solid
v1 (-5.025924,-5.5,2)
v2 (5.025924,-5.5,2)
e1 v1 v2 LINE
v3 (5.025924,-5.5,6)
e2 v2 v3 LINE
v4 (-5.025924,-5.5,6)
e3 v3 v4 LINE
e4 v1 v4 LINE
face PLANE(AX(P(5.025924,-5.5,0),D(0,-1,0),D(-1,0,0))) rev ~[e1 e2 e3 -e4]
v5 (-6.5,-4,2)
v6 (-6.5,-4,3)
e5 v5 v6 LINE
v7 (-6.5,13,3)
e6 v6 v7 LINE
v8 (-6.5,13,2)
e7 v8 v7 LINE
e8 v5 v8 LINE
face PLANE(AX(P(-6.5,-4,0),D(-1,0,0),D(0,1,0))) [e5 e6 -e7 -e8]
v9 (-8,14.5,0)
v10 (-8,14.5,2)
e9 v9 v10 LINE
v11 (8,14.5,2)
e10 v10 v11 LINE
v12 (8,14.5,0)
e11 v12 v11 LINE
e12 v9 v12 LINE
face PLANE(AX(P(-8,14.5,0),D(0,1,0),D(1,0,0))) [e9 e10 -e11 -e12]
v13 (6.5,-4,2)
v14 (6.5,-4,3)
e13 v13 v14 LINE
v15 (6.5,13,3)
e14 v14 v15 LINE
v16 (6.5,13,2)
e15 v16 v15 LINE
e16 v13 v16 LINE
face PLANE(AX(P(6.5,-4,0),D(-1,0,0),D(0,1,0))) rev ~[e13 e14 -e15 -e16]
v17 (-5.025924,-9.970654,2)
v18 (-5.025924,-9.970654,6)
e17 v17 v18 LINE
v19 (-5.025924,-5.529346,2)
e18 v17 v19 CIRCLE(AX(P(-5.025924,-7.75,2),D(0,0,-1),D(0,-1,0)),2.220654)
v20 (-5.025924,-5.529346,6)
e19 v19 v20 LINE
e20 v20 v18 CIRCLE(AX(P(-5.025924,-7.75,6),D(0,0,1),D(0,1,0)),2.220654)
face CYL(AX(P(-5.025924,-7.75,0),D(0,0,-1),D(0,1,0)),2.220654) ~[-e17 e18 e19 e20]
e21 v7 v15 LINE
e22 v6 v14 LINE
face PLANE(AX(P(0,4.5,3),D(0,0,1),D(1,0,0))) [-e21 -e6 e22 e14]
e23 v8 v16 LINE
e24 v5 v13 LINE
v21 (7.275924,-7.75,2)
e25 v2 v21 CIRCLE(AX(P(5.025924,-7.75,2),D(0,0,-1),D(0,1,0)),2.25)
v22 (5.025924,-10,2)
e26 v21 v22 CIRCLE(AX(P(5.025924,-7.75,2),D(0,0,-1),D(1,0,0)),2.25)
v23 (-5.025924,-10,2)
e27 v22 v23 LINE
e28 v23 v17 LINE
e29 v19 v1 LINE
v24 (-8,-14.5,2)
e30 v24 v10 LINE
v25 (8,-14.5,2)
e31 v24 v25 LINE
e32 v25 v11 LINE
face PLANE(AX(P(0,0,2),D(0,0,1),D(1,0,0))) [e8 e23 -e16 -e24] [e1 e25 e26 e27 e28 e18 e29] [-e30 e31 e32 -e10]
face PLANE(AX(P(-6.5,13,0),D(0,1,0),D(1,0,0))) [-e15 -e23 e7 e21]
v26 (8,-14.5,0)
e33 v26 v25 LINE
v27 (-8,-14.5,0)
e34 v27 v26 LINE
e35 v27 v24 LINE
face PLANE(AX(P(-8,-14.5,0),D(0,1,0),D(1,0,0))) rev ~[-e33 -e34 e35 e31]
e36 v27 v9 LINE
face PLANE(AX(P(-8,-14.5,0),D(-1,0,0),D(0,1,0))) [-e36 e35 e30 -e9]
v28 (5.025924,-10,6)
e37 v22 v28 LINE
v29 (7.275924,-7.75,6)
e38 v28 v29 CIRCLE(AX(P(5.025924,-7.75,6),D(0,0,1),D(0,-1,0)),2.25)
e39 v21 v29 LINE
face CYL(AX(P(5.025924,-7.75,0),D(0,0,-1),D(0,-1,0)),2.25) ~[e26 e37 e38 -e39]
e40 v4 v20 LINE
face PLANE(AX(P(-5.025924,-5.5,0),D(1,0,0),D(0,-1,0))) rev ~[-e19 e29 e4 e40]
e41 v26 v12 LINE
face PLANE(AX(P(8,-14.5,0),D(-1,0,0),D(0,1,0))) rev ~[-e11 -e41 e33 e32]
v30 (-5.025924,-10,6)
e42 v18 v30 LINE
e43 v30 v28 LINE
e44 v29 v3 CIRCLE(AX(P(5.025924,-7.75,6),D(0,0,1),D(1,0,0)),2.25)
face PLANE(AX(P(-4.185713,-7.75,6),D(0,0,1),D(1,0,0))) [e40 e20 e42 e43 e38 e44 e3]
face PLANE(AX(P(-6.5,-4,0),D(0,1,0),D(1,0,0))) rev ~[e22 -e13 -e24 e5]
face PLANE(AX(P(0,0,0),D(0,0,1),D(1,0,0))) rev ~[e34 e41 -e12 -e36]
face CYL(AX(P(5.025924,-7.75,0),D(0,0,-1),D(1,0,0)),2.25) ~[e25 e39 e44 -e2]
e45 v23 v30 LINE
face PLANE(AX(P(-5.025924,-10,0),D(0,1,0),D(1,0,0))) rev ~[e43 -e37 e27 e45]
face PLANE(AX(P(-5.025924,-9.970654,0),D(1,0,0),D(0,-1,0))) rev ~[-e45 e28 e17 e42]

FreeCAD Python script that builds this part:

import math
import FreeCAD as App
import Part
import Sketcher
Q = App.Units.Quantity

doc = App.newDocument("Part")
params = doc.addObject("Spreadsheet::Sheet", "Params")
for row, (alias, value) in enumerate([
    ("sketch1_width", "16 mm"),
    ("sketch1_width2", "13 mm"),
    ("sketch1_height", "29 mm"),
    ("sketch1_height2", "17 mm"),
    ("sketch1_radius", "2.25 mm"),
    ("pad1_length", "2 mm"),
    ("sketch2_radius", "2.25 mm"),
    ("pad2_length", "6 mm"),
    ("sketch3_width", "13 mm"),
    ("sketch3_height", "17 mm"),
    ("pad3_length", "3 mm"),
], start=1):
    params.set(f"A{row}", alias)
    params.set(f"B{row}", "=" + value)
    params.setAlias(f"B{row}", alias)

body = doc.addObject("PartDesign::Body", "Body")

# Sketch on XY plane
sketch1 = body.newObject("Sketcher::SketchObject", "Sketch")
sketch1.AttachmentSupport = (doc.getObject("XY_Plane"), [""])
sketch1.MapMode = "FlatFace"
sketch1.addGeometry(Part.LineSegment(App.Vector(-8, 14.5, 0), App.Vector(-8, -14.5, 0)), False)
sketch1.addGeometry(Part.LineSegment(App.Vector(-8, -14.5, 0), App.Vector(8, -14.5, 0)), False)
sketch1.addGeometry(Part.LineSegment(App.Vector(8, -14.5, 0), App.Vector(8, 14.5, 0)), False)
sketch1.addGeometry(Part.LineSegment(App.Vector(8, 14.5, 0), App.Vector(-8, 14.5, 0)), False)
sketch1.addGeometry(Part.ArcOfCircle(Part.Circle(App.Vector(5.026, -7.75, 0), App.Vector(0, 0, 1), 2.25), math.radians(0), math.radians(90)), False)
sketch1.addGeometry(Part.ArcOfCircle(Part.Circle(App.Vector(5.026, -7.75, 0), App.Vector(0, 0, 1), 2.25), math.radians(-90), math.radians(0)), False)
sketch1.addGeometry(Part.LineSegment(App.Vector(5.026, -10, 0), App.Vector(-5.026, -10, 0)), False)
sketch1.addGeometry(Part.LineSegment(App.Vector(-5.026, -10, 0), App.Vector(-5.026, -9.971, 0)), False)
sketch1.addGeometry(Part.ArcOfCircle(Part.Circle(App.Vector(-5.026, -7.75, 0), App.Vector(0, 0, 1), 2.221), math.radians(90), math.radians(270)), False)
sketch1.addGeometry(Part.LineSegment(App.Vector(-5.026, -5.529, 0), App.Vector(-5.026, -5.5, 0)), False)
sketch1.addGeometry(Part.LineSegment(App.Vector(-5.026, -5.5, 0), App.Vector(5.026, -5.5, 0)), False)
sketch1.addGeometry(Part.LineSegment(App.Vector(6.5, -4, 0), App.Vector(-6.5, -4, 0)), False)
sketch1.addGeometry(Part.LineSegment(App.Vector(-6.5, -4, 0), App.Vector(-6.5, 13, 0)), False)
sketch1.addGeometry(Part.LineSegment(App.Vector(-6.5, 13, 0), App.Vector(6.5, 13, 0)), False)
sketch1.addGeometry(Part.LineSegment(App.Vector(6.5, 13, 0), App.Vector(6.5, -4, 0)), False)
sketch1.addConstraint(Sketcher.Constraint("Coincident", 0, 2, 1, 1))
sketch1.addConstraint(Sketcher.Constraint("Coincident", 1, 2, 2, 1))
sketch1.addConstraint(Sketcher.Constraint("Coincident", 2, 2, 3, 1))
sketch1.addConstraint(Sketcher.Constraint("Coincident", 3, 2, 0, 1))
sketch1.addConstraint(Sketcher.Constraint("Tangent", 4, 1, 5, 2))
sketch1.addConstraint(Sketcher.Constraint("Tangent", 5, 1, 6, 1))
sketch1.addConstraint(Sketcher.Constraint("Coincident", 6, 2, 7, 1))
sketch1.addConstraint(Sketcher.Constraint("Coincident", 7, 2, 8, 2))
sketch1.addConstraint(Sketcher.Constraint("Coincident", 8, 1, 9, 1))
sketch1.addConstraint(Sketcher.Constraint("Coincident", 9, 2, 10, 1))
sketch1.addConstraint(Sketcher.Constraint("Tangent", 10, 2, 4, 2))
sketch1.addConstraint(Sketcher.Constraint("Coincident", 11, 2, 12, 1))
sketch1.addConstraint(Sketcher.Constraint("Coincident", 12, 2, 13, 1))
sketch1.addConstraint(Sketcher.Constraint("Coincident", 13, 2, 14, 1))
sketch1.addConstraint(Sketcher.Constraint("Coincident", 14, 2, 11, 1))
sketch1.addConstraint(Sketcher.Constraint("Vertical", 0))
sketch1.addConstraint(Sketcher.Constraint("Horizontal", 1))
sketch1.addConstraint(Sketcher.Constraint("Vertical", 2))
sketch1.addConstraint(Sketcher.Constraint("Horizontal", 3))
sketch1.addConstraint(Sketcher.Constraint("Horizontal", 6))
sketch1.addConstraint(Sketcher.Constraint("Vertical", 7))
sketch1.addConstraint(Sketcher.Constraint("Vertical", 9))
sketch1.addConstraint(Sketcher.Constraint("Horizontal", 10))
sketch1.addConstraint(Sketcher.Constraint("Horizontal", 11))
sketch1.addConstraint(Sketcher.Constraint("Vertical", 12))
sketch1.addConstraint(Sketcher.Constraint("Horizontal", 13))
sketch1.addConstraint(Sketcher.Constraint("Vertical", 14))
sketch1.addConstraint(Sketcher.Constraint("Equal", 4, 5))
sketch1.addConstraint(Sketcher.Constraint("Symmetric", 0, 2, 2, 2, -1, 1))
sketch1.addConstraint(Sketcher.Constraint("Symmetric", 4, 3, 8, 3, -2))
sketch1.addConstraint(Sketcher.Constraint("Horizontal", 8, 3, 4, 1))
sketch1.addConstraint(Sketcher.Constraint("Vertical", 8, 3, 6, 2))
sketch1.addConstraint(Sketcher.Constraint("Vertical", 7, 2, 8, 1))
sketch1.addConstraint(Sketcher.Constraint("DistanceX", 1, 1, 1, 2, Q("16 mm")))
sketch1.addConstraint(Sketcher.Constraint("DistanceX", 11, 2, 11, 1, Q("13 mm")))
sketch1.addConstraint(Sketcher.Constraint("DistanceY", 0, 2, 0, 1, Q("29 mm")))
sketch1.addConstraint(Sketcher.Constraint("DistanceY", 12, 1, 12, 2, Q("17 mm")))
sketch1.addConstraint(Sketcher.Constraint("Radius", 4, Q("2.25 mm")))
sketch1.addConstraint(Sketcher.Constraint("DistanceY", 5, 1, -1, 1, Q("10 mm")))
sketch1.addConstraint(Sketcher.Constraint("DistanceY", 11, 2, -1, 1, Q("4 mm")))
sketch1.addConstraint(Sketcher.Constraint("DistanceX", 11, 2, -1, 1, Q("6.5 mm")))
sketch1.addConstraint(Sketcher.Constraint("Radius", 8, Q("2.220654 mm")))
sketch1.addConstraint(Sketcher.Constraint("DistanceX", 6, 2, 6, 1, Q("10.051848 mm")))
sketch1.setExpression("Constraints[33]", "Params.sketch1_width")
sketch1.setExpression("Constraints[34]", "Params.sketch1_width2")
sketch1.setExpression("Constraints[35]", "Params.sketch1_height")
sketch1.setExpression("Constraints[36]", "Params.sketch1_height2")
sketch1.setExpression("Constraints[37]", "Params.sketch1_radius")
pad1 = body.newObject("PartDesign::Pad", "Pad")
pad1.Profile = sketch1
pad1.setExpression("Length", "Params.pad1_length")

# Sketch on XY plane
sketch2 = body.newObject("Sketcher::SketchObject", "Sketch001")
sketch2.AttachmentSupport = (doc.getObject("XY_Plane"), [""])
sketch2.MapMode = "FlatFace"
sketch2.addGeometry(Part.ArcOfCircle(Part.Circle(App.Vector(-5.026, -7.75, 0), App.Vector(0, 0, 1), 2.221), math.radians(90), math.radians(270)), False)
sketch2.addGeometry(Part.LineSegment(App.Vector(-5.026, -9.971, 0), App.Vector(-5.026, -10, 0)), False)
sketch2.addGeometry(Part.LineSegment(App.Vector(-5.026, -10, 0), App.Vector(5.026, -10, 0)), False)
sketch2.addGeometry(Part.ArcOfCircle(Part.Circle(App.Vector(5.026, -7.75, 0), App.Vector(0, 0, 1), 2.25), math.radians(-90), math.radians(0)), False)
sketch2.addGeometry(Part.ArcOfCircle(Part.Circle(App.Vector(5.026, -7.75, 0), App.Vector(0, 0, 1), 2.25), math.radians(0), math.radians(90)), False)
sketch2.addGeometry(Part.LineSegment(App.Vector(5.026, -5.5, 0), App.Vector(-5.026, -5.5, 0)), False)
sketch2.addGeometry(Part.LineSegment(App.Vector(-5.026, -5.5, 0), App.Vector(-5.026, -5.529, 0)), False)
sketch2.addConstraint(Sketcher.Constraint("Coincident", 0, 2, 1, 1))
sketch2.addConstraint(Sketcher.Constraint("Coincident", 1, 2, 2, 1))
sketch2.addConstraint(Sketcher.Constraint("Tangent", 2, 2, 3, 1))
sketch2.addConstraint(Sketcher.Constraint("Tangent", 3, 2, 4, 1))
sketch2.addConstraint(Sketcher.Constraint("Tangent", 4, 2, 5, 1))
sketch2.addConstraint(Sketcher.Constraint("Coincident", 5, 2, 6, 1))
sketch2.addConstraint(Sketcher.Constraint("Coincident", 6, 2, 0, 1))
sketch2.addConstraint(Sketcher.Constraint("Vertical", 1))
sketch2.addConstraint(Sketcher.Constraint("Horizontal", 2))
sketch2.addConstraint(Sketcher.Constraint("Horizontal", 5))
sketch2.addConstraint(Sketcher.Constraint("Vertical", 6))
sketch2.addConstraint(Sketcher.Constraint("Equal", 3, 4))
sketch2.addConstraint(Sketcher.Constraint("Symmetric", 0, 3, 3, 3, -2))
sketch2.addConstraint(Sketcher.Constraint("Horizontal", 4, 3, 3, 2))
sketch2.addConstraint(Sketcher.Constraint("Vertical", 1, 2, 5, 2))
sketch2.addConstraint(Sketcher.Constraint("Radius", 3, Q("2.25 mm")))
sketch2.addConstraint(Sketcher.Constraint("DistanceY", 1, 2, -1, 1, Q("10 mm")))
sketch2.addConstraint(Sketcher.Constraint("Radius", 0, Q("2.220654 mm")))
sketch2.addConstraint(Sketcher.Constraint("DistanceX", 2, 1, 2, 2, Q("10.051848 mm")))
sketch2.addConstraint(Sketcher.Constraint("DistanceX", 0, 3, 3, 3, Q("10.051848 mm")))
sketch2.setExpression("Constraints[15]", "Params.sketch2_radius")
pad2 = body.newObject("PartDesign::Pad", "Pad001")
pad2.Profile = sketch2
pad2.setExpression("Length", "Params.pad2_length")

# Sketch on XY plane
sketch3 = body.newObject("Sketcher::SketchObject", "Sketch002")
sketch3.AttachmentSupport = (doc.getObject("XY_Plane"), [""])
sketch3.MapMode = "FlatFace"
sketch3.addGeometry(Part.LineSegment(App.Vector(-6, 13, 0), App.Vector(-6, -4, 0)), False)
sketch3.addGeometry(Part.LineSegment(App.Vector(-6, -4, 0), App.Vector(6, -4, 0)), False)
sketch3.addGeometry(Part.LineSegment(App.Vector(6, -4, 0), App.Vector(6, 13, 0)), False)
sketch3.addGeometry(Part.LineSegment(App.Vector(6, 13, 0), App.Vector(-6, 13, 0)), False)
sketch3.addConstraint(Sketcher.Constraint("Coincident", 0, 2, 1, 1))
sketch3.addConstraint(Sketcher.Constraint("Coincident", 1, 2, 2, 1))
sketch3.addConstraint(Sketcher.Constraint("Coincident", 2, 2, 3, 1))
sketch3.addConstraint(Sketcher.Constraint("Coincident", 3, 2, 0, 1))
sketch3.addConstraint(Sketcher.Constraint("Vertical", 0))
sketch3.addConstraint(Sketcher.Constraint("Horizontal", 1))
sketch3.addConstraint(Sketcher.Constraint("Vertical", 2))
sketch3.addConstraint(Sketcher.Constraint("Horizontal", 3))
sketch3.addConstraint(Sketcher.Constraint("DistanceX", 1, 1, 1, 2, Q("13 mm")))
sketch3.addConstraint(Sketcher.Constraint("DistanceY", 0, 2, 0, 1, Q("17 mm")))
sketch3.addConstraint(Sketcher.Constraint("DistanceY", 0, 2, -1, 1, Q("4 mm")))
sketch3.addConstraint(Sketcher.Constraint("DistanceX", 0, 2, -1, 1, Q("6.5 mm")))
sketch3.setExpression("Constraints[8]", "Params.sketch3_width")
sketch3.setExpression("Constraints[9]", "Params.sketch3_height")
pad3 = body.newObject("PartDesign::Pad", "Pad002")
pad3.Profile = sketch3
pad3.setExpression("Length", "Params.pad3_length")

doc.recompute()
